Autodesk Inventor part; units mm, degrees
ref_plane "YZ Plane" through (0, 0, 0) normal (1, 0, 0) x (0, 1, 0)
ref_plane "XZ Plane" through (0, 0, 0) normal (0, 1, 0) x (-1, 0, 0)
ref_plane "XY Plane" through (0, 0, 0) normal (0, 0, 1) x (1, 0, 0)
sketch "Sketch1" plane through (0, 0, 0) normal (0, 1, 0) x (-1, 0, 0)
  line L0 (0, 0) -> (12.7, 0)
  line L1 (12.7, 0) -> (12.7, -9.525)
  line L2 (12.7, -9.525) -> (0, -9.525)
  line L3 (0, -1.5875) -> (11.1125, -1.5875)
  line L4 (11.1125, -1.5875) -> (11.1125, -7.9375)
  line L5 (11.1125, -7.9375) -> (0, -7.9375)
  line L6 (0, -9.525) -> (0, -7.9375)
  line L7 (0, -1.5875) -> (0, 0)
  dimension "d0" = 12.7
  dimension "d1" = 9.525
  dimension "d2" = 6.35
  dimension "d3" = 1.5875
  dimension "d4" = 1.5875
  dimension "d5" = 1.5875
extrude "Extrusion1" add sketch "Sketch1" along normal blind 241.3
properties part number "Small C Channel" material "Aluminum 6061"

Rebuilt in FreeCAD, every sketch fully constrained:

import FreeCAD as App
import Part
import Sketcher
from FreeCAD import Vector
Q = App.Units.Quantity

doc = App.newDocument("Part")
params = doc.addObject("Spreadsheet::Sheet", "Params")
for row, (alias, value) in enumerate([
    ("sketch1_width", "0.5 in"),
    ("sketch1_height", "0.25 in"),
    ("sketch1_height2", "0.0625 in"),
    ("pad1_length", "9.5 in"),
], start=1):
    params.set(f"A{row}", alias)
    params.set(f"B{row}", "=" + value)
    params.setAlias(f"B{row}", alias)

body = doc.addObject("PartDesign::Body", "Body")

sketch1 = body.newObject("Sketcher::SketchObject", "Sketch")
sketch1.AttachmentSupport = (doc.getObject("XZ_Plane"), [""])
sketch1.MapMode = "FlatFace"
sketch1.addGeometry([
    Part.LineSegment(Vector(-12.7, 0, 0), Vector(0, 0, 0)),
    Part.LineSegment(Vector(0, 0, 0), Vector(0, -1.6, 0)),
    Part.LineSegment(Vector(0, -1.6, 0), Vector(-11.1, -1.6, 0)),
    Part.LineSegment(Vector(-11.1, -1.6, 0), Vector(-11.1, -7.9, 0)),
    Part.LineSegment(Vector(-11.1, -7.9, 0), Vector(0, -7.9, 0)),
    Part.LineSegment(Vector(0, -7.9, 0), Vector(0, -9.5, 0)),
    Part.LineSegment(Vector(0, -9.5, 0), Vector(-12.7, -9.5, 0)),
    Part.LineSegment(Vector(-12.7, -9.5, 0), Vector(-12.7, 0, 0)),
], False)
sketch1.addConstraint([
    Sketcher.Constraint("Coincident", 0, 2, 1, 1),
    Sketcher.Constraint("Coincident", 1, 2, 2, 1),
    Sketcher.Constraint("Coincident", 2, 2, 3, 1),
    Sketcher.Constraint("Coincident", 3, 2, 4, 1),
    Sketcher.Constraint("Coincident", 4, 2, 5, 1),
    Sketcher.Constraint("Coincident", 5, 2, 6, 1),
    Sketcher.Constraint("Coincident", 6, 2, 7, 1),
    Sketcher.Constraint("Coincident", 7, 2, 0, 1),
    Sketcher.Constraint("Horizontal", 0),
    Sketcher.Constraint("Vertical", 1),
    Sketcher.Constraint("Horizontal", 2),
    Sketcher.Constraint("Vertical", 3),
    Sketcher.Constraint("Horizontal", 4),
    Sketcher.Constraint("Vertical", 5),
    Sketcher.Constraint("Horizontal", 6),
    Sketcher.Constraint("Vertical", 7),
    Sketcher.Constraint("Coincident", 0, 2, -1, 1),
    Sketcher.Constraint("PointOnObject", 4, 2, -2),
    Sketcher.Constraint("Equal", 1, 5),
    Sketcher.Constraint("DistanceX", 0, 1, 0, 2, Q("0.5 in")),
    Sketcher.Constraint("DistanceY", 3, 2, 3, 1, Q("0.25 in")),
    Sketcher.Constraint("DistanceY", 1, 2, 1, 1, Q("0.0625 in")),
    Sketcher.Constraint("DistanceX", 6, 2, 3, 2, Q("0.0625 in")),
])
sketch1.setExpression("Constraints[19]", "Params.sketch1_width")
sketch1.setExpression("Constraints[20]", "Params.sketch1_height")
sketch1.setExpression("Constraints[21]", "Params.sketch1_height2")
pad1 = body.newObject("PartDesign::Pad", "Pad")
pad1.Profile = sketch1
pad1.setExpression("Length", "Params.pad1_length")
pad1.Reversed = True

doc.recompute()
